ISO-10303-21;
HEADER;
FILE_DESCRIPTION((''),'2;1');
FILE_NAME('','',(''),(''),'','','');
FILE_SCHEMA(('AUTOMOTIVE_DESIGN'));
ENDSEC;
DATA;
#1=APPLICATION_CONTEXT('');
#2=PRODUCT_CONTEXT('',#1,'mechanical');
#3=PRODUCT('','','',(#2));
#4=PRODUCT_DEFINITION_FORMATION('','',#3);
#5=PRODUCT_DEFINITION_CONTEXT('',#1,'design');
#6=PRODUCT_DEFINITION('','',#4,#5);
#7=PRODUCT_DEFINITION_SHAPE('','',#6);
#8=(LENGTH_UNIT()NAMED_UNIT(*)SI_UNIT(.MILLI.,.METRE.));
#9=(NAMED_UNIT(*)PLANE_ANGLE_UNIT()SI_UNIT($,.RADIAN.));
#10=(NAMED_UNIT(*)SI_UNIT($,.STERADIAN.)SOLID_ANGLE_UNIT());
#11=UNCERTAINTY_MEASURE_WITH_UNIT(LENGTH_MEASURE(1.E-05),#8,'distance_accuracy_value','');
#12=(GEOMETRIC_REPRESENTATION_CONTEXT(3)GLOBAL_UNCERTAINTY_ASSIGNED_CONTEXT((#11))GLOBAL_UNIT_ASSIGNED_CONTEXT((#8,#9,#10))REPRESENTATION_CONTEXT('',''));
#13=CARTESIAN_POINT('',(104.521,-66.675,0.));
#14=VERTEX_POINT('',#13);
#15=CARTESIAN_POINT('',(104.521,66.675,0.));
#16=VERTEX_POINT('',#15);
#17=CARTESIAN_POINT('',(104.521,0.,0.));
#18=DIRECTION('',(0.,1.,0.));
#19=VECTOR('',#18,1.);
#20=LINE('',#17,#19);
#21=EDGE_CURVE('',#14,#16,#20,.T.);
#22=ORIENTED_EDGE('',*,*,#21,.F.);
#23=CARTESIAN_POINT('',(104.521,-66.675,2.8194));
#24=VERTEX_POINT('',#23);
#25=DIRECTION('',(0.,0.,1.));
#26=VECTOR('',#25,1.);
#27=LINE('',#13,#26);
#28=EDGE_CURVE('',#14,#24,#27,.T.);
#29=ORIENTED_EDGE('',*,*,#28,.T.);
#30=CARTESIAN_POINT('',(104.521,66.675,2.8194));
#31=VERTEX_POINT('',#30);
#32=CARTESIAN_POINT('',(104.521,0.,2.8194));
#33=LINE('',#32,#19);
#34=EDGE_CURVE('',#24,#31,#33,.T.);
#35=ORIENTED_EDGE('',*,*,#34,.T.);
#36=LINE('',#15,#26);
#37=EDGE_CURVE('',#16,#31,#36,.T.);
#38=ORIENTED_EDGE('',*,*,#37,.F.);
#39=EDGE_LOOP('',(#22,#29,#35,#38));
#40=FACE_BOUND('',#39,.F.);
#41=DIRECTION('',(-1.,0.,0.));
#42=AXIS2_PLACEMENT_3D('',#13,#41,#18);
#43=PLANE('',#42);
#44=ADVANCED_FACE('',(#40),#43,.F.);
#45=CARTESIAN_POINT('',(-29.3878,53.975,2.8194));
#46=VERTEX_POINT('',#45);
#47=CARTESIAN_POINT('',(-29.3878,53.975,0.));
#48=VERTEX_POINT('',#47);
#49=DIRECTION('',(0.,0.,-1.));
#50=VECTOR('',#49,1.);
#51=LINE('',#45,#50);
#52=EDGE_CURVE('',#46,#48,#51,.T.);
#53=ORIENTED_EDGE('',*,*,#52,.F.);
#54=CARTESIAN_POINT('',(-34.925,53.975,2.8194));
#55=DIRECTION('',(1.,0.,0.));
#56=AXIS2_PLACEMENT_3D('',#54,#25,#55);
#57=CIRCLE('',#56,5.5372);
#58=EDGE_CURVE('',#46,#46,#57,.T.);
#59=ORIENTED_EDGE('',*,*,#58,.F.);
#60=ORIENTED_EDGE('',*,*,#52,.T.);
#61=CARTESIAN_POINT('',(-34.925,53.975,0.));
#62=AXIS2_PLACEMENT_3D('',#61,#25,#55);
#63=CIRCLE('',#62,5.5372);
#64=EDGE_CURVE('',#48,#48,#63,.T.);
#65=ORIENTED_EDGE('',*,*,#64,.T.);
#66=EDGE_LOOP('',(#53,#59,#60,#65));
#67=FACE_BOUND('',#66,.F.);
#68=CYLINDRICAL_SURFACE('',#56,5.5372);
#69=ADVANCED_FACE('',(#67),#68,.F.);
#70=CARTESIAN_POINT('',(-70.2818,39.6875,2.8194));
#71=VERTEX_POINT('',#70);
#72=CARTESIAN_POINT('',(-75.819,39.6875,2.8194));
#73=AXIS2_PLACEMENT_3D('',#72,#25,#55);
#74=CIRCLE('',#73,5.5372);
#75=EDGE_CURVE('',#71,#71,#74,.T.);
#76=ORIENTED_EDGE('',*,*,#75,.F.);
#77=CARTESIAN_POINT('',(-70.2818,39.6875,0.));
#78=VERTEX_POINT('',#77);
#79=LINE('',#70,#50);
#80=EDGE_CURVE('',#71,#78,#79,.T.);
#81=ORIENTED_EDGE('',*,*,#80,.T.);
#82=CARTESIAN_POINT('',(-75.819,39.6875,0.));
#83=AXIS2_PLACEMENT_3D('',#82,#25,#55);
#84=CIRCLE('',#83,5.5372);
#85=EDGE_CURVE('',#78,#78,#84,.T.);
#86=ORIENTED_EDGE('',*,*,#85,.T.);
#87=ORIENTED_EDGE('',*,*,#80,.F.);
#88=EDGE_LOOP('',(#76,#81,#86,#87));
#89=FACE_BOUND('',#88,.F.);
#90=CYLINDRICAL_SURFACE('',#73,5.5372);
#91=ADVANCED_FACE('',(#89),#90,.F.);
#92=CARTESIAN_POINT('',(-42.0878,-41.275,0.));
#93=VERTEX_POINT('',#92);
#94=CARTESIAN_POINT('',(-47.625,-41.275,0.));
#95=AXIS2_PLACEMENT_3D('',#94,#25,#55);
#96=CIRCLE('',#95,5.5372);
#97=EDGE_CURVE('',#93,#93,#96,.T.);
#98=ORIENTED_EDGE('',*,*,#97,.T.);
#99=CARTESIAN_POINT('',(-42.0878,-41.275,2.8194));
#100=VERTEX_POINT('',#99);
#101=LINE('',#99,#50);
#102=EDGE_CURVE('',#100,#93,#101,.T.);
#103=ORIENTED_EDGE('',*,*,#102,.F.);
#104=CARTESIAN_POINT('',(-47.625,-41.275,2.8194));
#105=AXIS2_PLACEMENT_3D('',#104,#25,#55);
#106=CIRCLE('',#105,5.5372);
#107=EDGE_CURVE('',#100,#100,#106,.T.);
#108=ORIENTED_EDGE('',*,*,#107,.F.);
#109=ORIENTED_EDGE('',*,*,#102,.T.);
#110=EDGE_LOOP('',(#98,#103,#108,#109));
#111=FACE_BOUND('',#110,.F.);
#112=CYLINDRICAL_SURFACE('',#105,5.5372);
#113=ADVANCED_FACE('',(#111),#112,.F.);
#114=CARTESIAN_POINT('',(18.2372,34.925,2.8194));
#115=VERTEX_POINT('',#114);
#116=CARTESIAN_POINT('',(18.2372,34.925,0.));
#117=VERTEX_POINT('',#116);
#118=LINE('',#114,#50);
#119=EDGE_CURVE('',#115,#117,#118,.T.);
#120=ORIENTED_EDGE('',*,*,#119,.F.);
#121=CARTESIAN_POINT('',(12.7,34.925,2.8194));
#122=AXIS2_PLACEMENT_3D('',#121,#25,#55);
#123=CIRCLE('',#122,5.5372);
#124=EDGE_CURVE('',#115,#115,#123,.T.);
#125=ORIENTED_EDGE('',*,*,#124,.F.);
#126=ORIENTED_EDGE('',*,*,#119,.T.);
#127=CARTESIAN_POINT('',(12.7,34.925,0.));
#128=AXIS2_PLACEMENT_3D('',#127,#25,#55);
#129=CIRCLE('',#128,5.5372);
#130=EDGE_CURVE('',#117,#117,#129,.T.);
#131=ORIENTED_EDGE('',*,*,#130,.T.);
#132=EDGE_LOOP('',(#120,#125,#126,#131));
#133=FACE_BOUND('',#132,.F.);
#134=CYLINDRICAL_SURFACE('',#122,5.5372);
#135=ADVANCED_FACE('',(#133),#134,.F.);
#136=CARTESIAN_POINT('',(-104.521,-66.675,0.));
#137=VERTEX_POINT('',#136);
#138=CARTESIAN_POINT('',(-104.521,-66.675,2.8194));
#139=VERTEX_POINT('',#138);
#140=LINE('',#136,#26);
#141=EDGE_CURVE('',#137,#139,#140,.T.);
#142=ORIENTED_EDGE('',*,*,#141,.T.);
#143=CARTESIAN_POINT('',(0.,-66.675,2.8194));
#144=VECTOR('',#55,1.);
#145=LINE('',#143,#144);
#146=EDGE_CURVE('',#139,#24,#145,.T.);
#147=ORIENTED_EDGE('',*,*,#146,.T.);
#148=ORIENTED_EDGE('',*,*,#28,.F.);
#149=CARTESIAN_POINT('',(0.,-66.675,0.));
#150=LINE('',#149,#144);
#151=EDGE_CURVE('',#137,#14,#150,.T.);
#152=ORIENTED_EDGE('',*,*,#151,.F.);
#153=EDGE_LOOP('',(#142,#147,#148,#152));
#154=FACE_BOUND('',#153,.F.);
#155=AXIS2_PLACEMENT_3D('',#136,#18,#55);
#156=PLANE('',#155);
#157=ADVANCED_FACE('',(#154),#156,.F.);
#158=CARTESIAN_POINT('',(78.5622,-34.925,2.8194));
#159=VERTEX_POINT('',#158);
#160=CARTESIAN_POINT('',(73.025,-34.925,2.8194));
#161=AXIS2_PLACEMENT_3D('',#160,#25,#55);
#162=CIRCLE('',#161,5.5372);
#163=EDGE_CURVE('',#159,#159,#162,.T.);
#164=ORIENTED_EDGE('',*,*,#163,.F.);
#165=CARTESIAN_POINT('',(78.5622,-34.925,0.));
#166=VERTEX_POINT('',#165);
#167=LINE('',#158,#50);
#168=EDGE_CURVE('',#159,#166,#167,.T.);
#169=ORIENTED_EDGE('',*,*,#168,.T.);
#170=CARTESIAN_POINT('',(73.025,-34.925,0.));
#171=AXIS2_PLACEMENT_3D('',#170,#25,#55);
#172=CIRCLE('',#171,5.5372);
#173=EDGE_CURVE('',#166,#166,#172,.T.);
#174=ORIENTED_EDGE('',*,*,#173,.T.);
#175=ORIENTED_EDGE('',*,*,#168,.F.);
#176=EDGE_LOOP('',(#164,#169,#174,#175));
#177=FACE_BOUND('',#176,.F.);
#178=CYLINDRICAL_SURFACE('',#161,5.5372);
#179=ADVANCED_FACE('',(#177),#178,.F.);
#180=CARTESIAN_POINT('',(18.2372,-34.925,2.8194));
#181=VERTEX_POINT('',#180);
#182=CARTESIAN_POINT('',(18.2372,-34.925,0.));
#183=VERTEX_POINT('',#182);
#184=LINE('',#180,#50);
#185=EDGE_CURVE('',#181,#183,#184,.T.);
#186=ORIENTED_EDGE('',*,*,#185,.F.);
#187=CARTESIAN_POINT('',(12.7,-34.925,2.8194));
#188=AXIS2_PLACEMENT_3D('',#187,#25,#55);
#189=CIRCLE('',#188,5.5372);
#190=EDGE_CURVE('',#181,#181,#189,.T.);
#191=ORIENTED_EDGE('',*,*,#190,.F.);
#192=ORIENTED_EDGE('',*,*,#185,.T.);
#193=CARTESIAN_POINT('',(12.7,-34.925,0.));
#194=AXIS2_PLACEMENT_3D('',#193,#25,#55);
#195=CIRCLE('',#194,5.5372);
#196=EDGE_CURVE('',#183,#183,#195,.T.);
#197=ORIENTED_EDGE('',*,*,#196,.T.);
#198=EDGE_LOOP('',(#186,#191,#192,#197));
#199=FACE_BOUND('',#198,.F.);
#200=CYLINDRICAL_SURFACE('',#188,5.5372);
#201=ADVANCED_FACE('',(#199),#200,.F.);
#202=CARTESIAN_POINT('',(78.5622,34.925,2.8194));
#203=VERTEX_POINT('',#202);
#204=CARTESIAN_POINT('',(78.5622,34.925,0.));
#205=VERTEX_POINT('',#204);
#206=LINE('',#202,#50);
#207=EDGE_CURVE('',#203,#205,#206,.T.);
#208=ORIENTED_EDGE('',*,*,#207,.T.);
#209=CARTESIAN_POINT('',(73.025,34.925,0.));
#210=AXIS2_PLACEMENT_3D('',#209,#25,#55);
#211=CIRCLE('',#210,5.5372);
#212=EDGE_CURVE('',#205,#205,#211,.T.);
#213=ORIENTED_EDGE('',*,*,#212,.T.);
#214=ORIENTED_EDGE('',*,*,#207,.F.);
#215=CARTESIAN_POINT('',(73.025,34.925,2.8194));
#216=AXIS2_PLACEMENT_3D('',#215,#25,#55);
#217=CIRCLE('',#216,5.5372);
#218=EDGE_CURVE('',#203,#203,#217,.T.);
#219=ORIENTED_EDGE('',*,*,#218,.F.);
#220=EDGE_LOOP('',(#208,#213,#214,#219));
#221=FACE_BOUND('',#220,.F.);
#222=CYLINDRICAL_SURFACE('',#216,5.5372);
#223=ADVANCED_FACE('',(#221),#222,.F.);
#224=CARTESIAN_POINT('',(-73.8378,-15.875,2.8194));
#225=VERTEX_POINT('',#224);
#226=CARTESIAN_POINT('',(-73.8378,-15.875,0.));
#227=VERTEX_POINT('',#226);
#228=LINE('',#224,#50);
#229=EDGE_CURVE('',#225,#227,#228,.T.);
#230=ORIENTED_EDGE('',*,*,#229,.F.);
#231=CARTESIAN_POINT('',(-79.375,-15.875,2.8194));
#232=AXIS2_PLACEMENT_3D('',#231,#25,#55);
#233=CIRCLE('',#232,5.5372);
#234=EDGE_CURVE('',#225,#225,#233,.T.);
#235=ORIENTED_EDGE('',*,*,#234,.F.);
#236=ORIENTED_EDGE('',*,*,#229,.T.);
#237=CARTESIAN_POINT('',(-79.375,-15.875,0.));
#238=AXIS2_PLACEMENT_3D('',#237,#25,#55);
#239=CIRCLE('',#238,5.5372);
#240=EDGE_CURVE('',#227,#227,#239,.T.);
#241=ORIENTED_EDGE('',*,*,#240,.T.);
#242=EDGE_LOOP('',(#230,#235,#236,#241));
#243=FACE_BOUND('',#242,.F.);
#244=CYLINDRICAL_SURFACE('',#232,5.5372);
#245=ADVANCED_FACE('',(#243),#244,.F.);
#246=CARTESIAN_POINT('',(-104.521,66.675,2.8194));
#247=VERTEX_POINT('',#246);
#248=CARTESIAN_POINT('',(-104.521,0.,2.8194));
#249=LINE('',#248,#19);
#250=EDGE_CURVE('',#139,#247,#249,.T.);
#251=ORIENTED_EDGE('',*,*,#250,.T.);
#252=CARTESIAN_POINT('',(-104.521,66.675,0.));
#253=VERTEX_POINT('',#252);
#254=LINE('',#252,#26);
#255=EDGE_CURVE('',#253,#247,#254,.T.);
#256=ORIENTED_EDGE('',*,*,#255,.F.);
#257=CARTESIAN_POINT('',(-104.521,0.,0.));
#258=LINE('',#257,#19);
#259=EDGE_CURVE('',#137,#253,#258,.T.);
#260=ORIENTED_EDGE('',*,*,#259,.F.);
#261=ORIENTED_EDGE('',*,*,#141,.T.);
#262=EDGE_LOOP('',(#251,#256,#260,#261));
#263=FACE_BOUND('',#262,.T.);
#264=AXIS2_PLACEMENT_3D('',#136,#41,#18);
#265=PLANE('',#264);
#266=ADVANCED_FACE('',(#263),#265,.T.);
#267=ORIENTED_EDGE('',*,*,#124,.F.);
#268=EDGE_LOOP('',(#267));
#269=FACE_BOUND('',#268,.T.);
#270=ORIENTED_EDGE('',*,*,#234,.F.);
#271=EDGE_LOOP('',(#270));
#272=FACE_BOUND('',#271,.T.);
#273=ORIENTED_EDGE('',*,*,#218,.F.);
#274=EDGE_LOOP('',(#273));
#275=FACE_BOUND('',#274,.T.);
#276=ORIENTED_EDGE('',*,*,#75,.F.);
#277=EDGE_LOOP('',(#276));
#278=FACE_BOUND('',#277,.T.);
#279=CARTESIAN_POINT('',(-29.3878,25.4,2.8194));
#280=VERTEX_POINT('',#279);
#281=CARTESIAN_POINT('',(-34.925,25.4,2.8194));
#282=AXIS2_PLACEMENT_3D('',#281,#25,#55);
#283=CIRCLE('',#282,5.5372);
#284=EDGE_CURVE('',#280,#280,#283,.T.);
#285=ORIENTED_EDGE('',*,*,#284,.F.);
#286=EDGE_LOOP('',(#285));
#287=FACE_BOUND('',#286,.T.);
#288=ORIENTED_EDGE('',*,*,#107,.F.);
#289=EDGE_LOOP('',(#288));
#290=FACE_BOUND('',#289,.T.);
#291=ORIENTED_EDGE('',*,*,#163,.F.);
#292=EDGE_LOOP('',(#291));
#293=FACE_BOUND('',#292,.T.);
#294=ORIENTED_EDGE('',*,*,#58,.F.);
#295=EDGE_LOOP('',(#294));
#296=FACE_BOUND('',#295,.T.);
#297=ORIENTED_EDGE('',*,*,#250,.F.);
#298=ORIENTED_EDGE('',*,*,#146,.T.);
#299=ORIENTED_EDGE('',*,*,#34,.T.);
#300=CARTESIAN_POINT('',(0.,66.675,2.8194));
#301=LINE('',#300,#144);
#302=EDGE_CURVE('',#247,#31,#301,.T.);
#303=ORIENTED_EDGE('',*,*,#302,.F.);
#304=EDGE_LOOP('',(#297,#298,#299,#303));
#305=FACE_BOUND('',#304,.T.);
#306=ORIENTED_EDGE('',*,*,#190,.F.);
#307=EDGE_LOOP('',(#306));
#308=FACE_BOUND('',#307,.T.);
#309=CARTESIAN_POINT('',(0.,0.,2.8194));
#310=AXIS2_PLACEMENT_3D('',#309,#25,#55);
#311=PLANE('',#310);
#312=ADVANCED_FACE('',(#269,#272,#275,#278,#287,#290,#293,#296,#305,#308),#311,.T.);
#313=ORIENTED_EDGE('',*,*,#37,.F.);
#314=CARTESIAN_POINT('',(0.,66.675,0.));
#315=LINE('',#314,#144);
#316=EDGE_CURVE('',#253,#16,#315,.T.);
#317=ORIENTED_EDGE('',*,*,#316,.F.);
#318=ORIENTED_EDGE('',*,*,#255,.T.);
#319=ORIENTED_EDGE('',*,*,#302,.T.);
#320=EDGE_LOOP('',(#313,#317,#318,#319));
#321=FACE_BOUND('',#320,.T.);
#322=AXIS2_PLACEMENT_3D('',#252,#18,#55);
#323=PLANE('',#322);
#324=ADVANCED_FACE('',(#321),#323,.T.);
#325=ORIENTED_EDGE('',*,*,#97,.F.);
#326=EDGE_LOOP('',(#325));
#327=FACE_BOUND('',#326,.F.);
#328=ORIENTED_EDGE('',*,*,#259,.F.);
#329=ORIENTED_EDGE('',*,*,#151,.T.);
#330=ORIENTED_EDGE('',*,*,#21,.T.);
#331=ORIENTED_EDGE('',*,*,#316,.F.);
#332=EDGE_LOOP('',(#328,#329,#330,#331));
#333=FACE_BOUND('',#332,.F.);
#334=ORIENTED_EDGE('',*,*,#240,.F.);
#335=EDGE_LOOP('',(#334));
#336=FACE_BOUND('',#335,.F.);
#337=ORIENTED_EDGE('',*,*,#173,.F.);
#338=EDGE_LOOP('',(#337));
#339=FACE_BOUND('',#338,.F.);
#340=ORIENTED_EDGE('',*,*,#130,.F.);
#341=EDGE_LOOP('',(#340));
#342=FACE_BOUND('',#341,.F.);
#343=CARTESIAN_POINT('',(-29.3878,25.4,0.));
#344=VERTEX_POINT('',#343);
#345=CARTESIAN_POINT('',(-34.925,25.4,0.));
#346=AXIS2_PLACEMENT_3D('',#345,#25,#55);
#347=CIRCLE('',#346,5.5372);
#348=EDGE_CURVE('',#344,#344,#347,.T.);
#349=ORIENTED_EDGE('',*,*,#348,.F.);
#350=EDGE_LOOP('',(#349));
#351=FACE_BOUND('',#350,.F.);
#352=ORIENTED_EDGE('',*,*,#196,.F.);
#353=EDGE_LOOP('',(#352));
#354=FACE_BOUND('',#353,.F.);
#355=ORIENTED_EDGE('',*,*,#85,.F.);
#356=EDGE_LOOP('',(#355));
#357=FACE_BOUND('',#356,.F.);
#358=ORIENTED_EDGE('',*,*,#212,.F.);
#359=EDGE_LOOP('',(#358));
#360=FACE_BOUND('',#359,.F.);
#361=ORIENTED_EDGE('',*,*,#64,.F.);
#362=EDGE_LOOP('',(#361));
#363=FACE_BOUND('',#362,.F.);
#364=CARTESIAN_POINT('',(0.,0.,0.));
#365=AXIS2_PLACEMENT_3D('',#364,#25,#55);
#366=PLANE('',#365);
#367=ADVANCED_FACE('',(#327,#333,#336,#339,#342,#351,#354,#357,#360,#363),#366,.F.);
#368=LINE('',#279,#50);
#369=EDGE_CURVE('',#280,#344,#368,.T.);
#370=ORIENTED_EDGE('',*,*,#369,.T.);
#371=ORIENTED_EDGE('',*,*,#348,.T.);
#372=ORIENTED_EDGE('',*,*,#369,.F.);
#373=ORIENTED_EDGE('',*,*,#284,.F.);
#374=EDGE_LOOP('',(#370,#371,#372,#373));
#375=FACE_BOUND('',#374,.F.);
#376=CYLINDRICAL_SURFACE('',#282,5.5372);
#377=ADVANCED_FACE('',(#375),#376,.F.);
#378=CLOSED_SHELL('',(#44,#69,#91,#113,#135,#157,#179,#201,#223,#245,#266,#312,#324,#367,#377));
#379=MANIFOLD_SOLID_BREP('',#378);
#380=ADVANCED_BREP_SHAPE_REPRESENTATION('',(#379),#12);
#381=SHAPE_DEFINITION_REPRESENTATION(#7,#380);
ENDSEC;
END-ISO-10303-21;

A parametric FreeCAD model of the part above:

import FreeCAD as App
import Part
import Sketcher

V = App.Vector
Q = App.Units.Quantity

doc = App.newDocument("Part")
body = doc.addObject("PartDesign::Body", "Body")

sketch1 = body.newObject("Sketcher::SketchObject", "Sketch")
sketch1.AttachmentSupport = (doc.getObject("XY_Plane"), [""])
sketch1.MapMode = "FlatFace"
sketch1.addGeometry(Part.LineSegment(V(-105, 67, 0), V(-105, -67, 0)), False)
sketch1.addGeometry(Part.LineSegment(V(-105, -67, 0), V(105, -67, 0)), False)
sketch1.addGeometry(Part.LineSegment(V(105, -67, 0), V(105, 67, 0)), False)
sketch1.addGeometry(Part.LineSegment(V(105, 67, 0), V(-105, 67, 0)), False)
sketch1.addConstraint(Sketcher.Constraint("Coincident", 0, 2, 1, 1))
sketch1.addConstraint(Sketcher.Constraint("Coincident", 1, 2, 2, 1))
sketch1.addConstraint(Sketcher.Constraint("Coincident", 2, 2, 3, 1))
sketch1.addConstraint(Sketcher.Constraint("Coincident", 3, 2, 0, 1))
sketch1.addConstraint(Sketcher.Constraint("Vertical", 0))
sketch1.addConstraint(Sketcher.Constraint("Horizontal", 1))
sketch1.addConstraint(Sketcher.Constraint("Vertical", 2))
sketch1.addConstraint(Sketcher.Constraint("Horizontal", 3))
sketch1.addConstraint(Sketcher.Constraint("Symmetric", 0, 2, 2, 2, -1, 1))
sketch1.addConstraint(Sketcher.Constraint("DistanceX", 1, 1, 1, 2, Q("8.23 in")))
sketch1.addConstraint(Sketcher.Constraint("DistanceY", 0, 2, 0, 1, Q("5.25 in")))
pad1 = body.newObject("PartDesign::Pad", "Pad")
pad1.Profile = sketch1
pad1.Length = Q("0.111 in")

sketch2 = body.newObject("Sketcher::SketchObject", "Sketch001")
sketch2.AttachmentSupport = (doc.getObject("XY_Plane"), [""])
sketch2.MapMode = "FlatFace"
sketch2.AttachmentOffset = App.Placement(V(0, 0, 0.111 * 25.4), App.Rotation())
sketch2.addGeometry(Part.Circle(V(-76, 40, 0), V(0, 0, 1), 6), False)
sketch2.addGeometry(Part.Circle(V(-79, -16, 0), V(0, 0, 1), 6), False)
sketch2.addGeometry(Part.Circle(V(-35, 54, 0), V(0, 0, 1), 6), False)
sketch2.addGeometry(Part.Circle(V(-35, 25, 0), V(0, 0, 1), 6), False)
sketch2.addGeometry(Part.Circle(V(13, 35, 0), V(0, 0, 1), 6), False)
sketch2.addGeometry(Part.Circle(V(-48, -41, 0), V(0, 0, 1), 6), False)
sketch2.addGeometry(Part.Circle(V(73, 35, 0), V(0, 0, 1), 6), False)
sketch2.addGeometry(Part.Circle(V(13, -35, 0), V(0, 0, 1), 6), False)
sketch2.addGeometry(Part.Circle(V(73, -35, 0), V(0, 0, 1), 6), False)
sketch2.addConstraint(Sketcher.Constraint("Equal", 0, 1))
sketch2.addConstraint(Sketcher.Constraint("Equal", 1, 2))
sketch2.addConstraint(Sketcher.Constraint("Equal", 2, 3))
sketch2.addConstraint(Sketcher.Constraint("Equal", 3, 4))
sketch2.addConstraint(Sketcher.Constraint("Equal", 4, 5))
sketch2.addConstraint(Sketcher.Constraint("Equal", 5, 6))
sketch2.addConstraint(Sketcher.Constraint("Equal", 6, 7))
sketch2.addConstraint(Sketcher.Constraint("Equal", 7, 8))
sketch2.addConstraint(Sketcher.Constraint("Symmetric", 4, 3, 7, 3, -1))
sketch2.addConstraint(Sketcher.Constraint("Symmetric", 6, 3, 8, 3, -1))
sketch2.addConstraint(Sketcher.Constraint("Horizontal", 4, 3, 6, 3))
sketch2.addConstraint(Sketcher.Constraint("Vertical", 2, 3, 3, 3))
sketch2.addConstraint(Sketcher.Constraint("Diameter", 0, Q("0.436 in")))
sketch2.addConstraint(Sketcher.Constraint("DistanceY", -1, 1, 3, 3, Q("1 in")))
sketch2.addConstraint(Sketcher.Constraint("DistanceY", 1, 3, 4, 3, Q("2 in")))
sketch2.addConstraint(Sketcher.Constraint("DistanceY", 5, 3, 1, 3, Q("1 in")))
sketch2.addConstraint(Sketcher.Constraint("DistanceX", -1, 1, 4, 3, Q("0.5 in")))
sketch2.addConstraint(Sketcher.Constraint("DistanceX", 5, 3, 3, 3, Q("0.5 in")))
sketch2.addConstraint(Sketcher.Constraint("DistanceX", 1, 3, 0, 3, Q("0.14 in")))
sketch2.addConstraint(Sketcher.Constraint("DistanceX", 0, 3, 2, 3, Q("1.61 in")))
sketch2.addConstraint(Sketcher.Constraint("DistanceY", 1, 3, 2, 3, Q("2.75 in")))
sketch2.addConstraint(Sketcher.Constraint("DistanceX", 3, 3, 6, 3, Q("4.25 in")))
sketch2.addConstraint(Sketcher.Constraint("DistanceY", 5, 3, 7, 3, Q("0.25 in")))
sketch2.addConstraint(Sketcher.Constraint("DistanceX", 0, 3, -1, 1, Q("2.985 in")))
sketch2.addConstraint(Sketcher.Constraint("DistanceY", -1, 1, 0, 3, Q("1.5625 in")))
pocket1 = body.newObject("PartDesign::Pocket", "Pocket")
pocket1.Profile = sketch2
pocket1.Type = "ThroughAll"

doc.recompute()
